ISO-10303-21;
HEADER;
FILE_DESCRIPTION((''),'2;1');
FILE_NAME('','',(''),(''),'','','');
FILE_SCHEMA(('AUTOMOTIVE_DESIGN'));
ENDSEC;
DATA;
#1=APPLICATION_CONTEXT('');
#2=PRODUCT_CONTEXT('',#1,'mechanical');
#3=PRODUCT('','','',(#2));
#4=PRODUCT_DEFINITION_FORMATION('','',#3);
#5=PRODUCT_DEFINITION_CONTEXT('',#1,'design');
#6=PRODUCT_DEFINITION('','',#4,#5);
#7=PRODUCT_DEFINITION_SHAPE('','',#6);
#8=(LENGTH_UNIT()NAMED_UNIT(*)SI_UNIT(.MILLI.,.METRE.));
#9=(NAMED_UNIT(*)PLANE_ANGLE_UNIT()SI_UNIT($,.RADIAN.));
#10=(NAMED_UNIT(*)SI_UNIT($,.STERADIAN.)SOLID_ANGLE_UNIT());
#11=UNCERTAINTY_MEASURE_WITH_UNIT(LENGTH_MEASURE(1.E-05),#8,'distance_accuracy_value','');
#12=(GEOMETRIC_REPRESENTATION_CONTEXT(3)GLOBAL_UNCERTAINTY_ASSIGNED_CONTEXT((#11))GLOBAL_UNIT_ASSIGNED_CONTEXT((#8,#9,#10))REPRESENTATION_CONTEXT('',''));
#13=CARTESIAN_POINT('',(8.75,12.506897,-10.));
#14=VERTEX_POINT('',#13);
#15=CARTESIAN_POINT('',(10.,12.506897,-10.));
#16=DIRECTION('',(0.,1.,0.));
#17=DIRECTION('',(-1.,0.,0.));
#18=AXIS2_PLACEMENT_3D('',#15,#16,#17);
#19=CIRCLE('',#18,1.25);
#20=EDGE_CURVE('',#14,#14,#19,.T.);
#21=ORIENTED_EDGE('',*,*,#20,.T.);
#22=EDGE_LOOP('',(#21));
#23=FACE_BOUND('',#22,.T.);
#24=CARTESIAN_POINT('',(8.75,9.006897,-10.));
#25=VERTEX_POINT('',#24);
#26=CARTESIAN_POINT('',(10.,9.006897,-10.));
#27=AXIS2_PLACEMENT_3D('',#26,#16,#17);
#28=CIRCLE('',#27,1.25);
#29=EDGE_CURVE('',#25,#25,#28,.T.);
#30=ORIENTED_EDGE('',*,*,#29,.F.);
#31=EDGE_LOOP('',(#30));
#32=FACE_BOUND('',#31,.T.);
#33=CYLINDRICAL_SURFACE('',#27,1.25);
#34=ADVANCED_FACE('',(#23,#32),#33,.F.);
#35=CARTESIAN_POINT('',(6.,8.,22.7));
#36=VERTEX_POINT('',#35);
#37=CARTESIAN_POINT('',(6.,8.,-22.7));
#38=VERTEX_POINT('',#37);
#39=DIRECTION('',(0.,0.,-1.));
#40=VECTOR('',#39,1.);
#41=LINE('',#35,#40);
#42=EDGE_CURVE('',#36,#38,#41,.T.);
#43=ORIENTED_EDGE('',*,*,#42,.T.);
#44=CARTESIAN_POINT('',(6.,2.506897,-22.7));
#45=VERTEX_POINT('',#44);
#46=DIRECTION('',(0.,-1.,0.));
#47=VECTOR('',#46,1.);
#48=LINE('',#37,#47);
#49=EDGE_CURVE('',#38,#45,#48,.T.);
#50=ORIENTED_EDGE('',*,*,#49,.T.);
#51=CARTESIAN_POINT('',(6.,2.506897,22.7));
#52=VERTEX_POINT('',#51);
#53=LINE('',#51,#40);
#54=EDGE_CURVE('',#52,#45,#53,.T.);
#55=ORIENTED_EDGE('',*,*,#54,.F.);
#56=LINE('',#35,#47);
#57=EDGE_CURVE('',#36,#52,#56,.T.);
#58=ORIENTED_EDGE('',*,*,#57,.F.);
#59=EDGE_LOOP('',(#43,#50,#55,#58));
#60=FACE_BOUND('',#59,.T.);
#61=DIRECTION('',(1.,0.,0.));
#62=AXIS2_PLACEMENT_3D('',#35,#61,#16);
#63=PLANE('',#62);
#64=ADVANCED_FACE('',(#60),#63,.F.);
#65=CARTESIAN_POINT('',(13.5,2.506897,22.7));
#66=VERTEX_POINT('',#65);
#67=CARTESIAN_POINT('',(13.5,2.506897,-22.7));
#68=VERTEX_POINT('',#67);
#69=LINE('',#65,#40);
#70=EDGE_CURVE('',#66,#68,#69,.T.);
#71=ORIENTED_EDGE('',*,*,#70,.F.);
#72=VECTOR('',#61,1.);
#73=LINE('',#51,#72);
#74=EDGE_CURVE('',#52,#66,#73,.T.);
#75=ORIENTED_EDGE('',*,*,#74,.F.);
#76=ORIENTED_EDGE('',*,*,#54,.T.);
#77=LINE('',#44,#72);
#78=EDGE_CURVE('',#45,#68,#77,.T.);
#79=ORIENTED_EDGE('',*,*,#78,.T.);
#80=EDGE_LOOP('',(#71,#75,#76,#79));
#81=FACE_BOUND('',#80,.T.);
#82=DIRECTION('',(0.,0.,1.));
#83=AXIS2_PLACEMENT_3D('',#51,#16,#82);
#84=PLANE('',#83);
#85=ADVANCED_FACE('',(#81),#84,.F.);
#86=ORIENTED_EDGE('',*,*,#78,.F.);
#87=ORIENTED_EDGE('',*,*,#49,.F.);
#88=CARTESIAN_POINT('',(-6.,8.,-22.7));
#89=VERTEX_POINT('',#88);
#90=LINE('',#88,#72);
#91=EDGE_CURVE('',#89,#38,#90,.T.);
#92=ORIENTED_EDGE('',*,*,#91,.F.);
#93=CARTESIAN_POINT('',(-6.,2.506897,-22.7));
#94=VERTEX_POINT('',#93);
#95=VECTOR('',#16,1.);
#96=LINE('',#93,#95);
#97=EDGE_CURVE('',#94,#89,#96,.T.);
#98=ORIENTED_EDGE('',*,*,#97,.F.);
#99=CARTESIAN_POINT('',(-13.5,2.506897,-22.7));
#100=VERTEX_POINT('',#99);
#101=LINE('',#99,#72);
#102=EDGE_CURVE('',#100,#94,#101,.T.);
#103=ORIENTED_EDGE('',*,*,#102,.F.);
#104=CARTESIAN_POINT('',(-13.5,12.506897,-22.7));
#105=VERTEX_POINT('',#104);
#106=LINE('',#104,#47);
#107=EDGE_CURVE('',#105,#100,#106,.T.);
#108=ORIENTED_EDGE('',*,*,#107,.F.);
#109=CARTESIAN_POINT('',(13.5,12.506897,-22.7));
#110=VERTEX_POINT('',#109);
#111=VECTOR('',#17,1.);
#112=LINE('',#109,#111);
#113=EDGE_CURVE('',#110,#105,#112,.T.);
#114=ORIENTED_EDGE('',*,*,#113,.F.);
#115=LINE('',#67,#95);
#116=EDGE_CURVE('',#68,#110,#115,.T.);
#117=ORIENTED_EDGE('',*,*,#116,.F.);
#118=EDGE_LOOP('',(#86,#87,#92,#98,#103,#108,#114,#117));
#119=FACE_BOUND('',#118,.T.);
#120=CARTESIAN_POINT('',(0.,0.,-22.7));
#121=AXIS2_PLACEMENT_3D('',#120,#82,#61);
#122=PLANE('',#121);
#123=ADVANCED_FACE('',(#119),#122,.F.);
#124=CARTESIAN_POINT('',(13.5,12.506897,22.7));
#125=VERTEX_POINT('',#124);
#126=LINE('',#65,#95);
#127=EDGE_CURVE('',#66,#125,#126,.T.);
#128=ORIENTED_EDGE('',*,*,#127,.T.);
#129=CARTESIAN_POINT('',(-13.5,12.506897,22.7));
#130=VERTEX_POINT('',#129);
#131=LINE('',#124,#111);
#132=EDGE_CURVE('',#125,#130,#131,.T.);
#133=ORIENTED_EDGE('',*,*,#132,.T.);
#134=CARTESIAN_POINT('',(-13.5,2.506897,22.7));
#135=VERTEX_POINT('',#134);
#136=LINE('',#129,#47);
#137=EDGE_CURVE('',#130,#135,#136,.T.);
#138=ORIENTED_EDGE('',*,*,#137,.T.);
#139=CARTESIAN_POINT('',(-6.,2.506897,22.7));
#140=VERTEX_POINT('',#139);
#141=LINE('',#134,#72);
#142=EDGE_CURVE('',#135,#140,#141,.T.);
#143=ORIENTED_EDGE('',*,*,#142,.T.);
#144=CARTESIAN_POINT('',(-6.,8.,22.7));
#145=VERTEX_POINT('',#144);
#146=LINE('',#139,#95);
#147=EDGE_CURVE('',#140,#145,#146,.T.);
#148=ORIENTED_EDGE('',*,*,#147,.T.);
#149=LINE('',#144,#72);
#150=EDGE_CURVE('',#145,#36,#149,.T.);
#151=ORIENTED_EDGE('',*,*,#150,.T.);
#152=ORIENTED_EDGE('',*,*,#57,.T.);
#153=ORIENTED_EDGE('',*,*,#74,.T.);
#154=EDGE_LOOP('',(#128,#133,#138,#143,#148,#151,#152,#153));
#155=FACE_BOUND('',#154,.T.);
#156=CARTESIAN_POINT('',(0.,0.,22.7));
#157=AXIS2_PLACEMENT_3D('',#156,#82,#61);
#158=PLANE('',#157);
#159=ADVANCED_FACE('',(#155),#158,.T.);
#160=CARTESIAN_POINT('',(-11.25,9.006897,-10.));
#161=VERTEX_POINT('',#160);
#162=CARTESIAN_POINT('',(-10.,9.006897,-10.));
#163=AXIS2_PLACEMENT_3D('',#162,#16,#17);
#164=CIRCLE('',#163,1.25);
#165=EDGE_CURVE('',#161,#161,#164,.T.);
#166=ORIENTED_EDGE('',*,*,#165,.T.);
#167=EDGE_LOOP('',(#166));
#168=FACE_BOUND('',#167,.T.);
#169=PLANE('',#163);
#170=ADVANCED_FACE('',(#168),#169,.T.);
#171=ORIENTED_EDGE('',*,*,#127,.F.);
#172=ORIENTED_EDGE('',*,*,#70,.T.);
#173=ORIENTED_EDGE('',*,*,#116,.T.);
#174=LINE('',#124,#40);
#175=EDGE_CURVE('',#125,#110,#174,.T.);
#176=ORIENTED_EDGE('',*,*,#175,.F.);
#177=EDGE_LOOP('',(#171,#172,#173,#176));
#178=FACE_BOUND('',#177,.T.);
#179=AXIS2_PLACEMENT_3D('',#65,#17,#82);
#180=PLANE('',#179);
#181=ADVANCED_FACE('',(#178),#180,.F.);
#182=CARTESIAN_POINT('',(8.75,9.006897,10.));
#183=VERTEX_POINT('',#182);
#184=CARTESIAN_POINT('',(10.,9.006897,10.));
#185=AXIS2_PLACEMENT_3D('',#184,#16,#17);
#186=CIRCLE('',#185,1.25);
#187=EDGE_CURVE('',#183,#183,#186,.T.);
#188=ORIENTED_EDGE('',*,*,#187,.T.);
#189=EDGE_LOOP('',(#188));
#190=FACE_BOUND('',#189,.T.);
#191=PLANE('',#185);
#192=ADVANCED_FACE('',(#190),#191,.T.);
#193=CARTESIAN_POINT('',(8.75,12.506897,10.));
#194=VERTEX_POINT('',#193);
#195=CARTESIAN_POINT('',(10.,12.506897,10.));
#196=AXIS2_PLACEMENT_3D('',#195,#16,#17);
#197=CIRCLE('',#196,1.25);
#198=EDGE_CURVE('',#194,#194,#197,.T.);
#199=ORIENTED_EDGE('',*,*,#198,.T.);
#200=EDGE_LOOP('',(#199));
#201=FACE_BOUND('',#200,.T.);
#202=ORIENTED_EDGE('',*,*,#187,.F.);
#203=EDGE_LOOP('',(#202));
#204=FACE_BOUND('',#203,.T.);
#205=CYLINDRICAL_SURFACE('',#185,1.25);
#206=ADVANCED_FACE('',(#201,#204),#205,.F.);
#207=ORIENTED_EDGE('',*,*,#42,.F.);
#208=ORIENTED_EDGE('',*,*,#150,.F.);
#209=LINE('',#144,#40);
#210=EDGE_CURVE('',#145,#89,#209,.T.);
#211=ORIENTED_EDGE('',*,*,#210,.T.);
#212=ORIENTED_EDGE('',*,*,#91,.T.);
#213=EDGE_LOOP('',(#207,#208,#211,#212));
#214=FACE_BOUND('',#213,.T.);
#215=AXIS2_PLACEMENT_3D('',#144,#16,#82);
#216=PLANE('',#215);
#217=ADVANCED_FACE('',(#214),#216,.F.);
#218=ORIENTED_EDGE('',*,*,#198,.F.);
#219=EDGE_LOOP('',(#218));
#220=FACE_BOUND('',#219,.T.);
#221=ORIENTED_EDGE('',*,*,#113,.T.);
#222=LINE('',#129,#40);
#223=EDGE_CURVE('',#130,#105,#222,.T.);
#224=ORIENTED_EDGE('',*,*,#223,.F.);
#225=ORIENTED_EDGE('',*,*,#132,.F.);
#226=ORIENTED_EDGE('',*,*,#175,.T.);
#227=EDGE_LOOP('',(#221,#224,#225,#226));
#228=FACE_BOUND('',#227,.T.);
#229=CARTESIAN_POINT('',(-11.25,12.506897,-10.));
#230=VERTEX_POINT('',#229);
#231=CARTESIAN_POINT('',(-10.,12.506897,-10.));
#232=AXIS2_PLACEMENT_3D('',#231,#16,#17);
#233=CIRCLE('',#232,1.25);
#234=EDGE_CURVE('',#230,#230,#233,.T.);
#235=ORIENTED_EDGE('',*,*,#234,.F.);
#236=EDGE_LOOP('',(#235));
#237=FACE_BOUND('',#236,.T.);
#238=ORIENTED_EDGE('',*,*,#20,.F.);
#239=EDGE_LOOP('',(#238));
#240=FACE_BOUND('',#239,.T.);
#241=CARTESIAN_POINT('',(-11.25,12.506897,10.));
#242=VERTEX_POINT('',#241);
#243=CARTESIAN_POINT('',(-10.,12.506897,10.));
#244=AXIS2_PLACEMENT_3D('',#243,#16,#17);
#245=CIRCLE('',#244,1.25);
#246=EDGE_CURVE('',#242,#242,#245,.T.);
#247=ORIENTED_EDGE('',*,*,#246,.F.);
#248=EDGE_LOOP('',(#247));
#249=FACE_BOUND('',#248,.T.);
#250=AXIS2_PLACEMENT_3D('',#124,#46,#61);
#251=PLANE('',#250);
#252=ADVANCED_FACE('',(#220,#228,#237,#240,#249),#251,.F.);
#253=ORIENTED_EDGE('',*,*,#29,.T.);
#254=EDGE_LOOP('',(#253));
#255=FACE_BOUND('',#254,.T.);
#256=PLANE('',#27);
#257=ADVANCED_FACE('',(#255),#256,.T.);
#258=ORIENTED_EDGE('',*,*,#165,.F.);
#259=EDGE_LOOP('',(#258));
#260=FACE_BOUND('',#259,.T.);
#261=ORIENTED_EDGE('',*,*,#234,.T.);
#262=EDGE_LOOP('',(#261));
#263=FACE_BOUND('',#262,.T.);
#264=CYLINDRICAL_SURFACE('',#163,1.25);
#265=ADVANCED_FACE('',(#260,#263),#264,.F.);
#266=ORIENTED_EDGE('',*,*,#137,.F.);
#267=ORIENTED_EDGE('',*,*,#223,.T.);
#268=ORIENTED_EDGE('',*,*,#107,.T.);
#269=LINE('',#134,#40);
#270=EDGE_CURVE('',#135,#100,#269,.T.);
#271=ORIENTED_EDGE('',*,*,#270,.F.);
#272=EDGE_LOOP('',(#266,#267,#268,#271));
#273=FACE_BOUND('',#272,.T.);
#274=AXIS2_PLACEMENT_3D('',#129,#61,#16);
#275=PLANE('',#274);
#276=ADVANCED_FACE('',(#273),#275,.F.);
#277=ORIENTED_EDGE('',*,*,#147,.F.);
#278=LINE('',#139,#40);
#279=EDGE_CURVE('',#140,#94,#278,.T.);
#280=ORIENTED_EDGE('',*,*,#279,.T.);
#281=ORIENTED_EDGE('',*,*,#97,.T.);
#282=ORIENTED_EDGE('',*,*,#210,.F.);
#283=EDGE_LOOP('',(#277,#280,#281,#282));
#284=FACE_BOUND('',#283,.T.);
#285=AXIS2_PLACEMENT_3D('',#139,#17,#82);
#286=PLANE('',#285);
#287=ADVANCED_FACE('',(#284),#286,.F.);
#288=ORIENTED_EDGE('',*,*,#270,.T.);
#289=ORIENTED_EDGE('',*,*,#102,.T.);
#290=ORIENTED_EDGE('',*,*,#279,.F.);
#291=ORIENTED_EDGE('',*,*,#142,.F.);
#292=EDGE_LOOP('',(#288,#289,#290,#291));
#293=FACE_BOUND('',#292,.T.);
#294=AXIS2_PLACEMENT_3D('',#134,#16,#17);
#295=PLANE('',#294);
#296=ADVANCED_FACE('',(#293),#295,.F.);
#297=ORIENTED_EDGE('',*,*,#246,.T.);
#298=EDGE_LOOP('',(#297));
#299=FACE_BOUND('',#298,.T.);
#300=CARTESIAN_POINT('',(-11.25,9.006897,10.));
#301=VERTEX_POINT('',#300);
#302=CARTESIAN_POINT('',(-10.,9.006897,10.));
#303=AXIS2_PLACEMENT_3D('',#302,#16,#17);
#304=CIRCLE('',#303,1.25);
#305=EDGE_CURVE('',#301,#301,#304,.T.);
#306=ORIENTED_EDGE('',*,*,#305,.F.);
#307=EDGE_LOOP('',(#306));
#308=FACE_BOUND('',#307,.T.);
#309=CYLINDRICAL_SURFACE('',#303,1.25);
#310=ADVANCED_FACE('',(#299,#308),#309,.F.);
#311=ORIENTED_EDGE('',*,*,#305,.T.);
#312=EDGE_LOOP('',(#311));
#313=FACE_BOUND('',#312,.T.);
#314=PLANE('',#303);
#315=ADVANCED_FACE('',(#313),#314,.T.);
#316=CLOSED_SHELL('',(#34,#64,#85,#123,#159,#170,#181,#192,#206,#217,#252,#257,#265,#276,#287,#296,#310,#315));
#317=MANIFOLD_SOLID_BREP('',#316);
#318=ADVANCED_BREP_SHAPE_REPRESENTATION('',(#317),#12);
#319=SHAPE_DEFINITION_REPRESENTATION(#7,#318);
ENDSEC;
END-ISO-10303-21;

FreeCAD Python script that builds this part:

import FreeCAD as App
import Part
import Sketcher
from FreeCAD import Vector

doc = App.newDocument("Part")
params = doc.addObject("Spreadsheet::Sheet", "Params")
for row, (alias, value) in enumerate([
    ("sketch1_width", "12 mm"),
    ("sketch1_width2", "27 mm"),
    ("sketch1_height", "10 mm"),
    ("pad1_length", "45.4 mm"),
    ("sketch2_diameter", "2.5 mm"),
    ("pocket1_length", "3.5 mm"),
], start=1):
    params.set(f"A{row}", alias)
    params.set(f"B{row}", "=" + value)
    params.setAlias(f"B{row}", alias)

body = doc.addObject("PartDesign::Body", "Body")

sketch1 = body.newObject("Sketcher::SketchObject", "Sketch")
sketch1.AttachmentSupport = (doc.getObject("XY_Plane"), [""])
sketch1.MapMode = "FlatFace"
sketch1.addGeometry([
    Part.LineSegment(Vector(-13.5, 2.506897, 0), Vector(-6, 2.506897, 0)),
    Part.LineSegment(Vector(-6, 2.506897, 0), Vector(-6, 8, 0)),
    Part.LineSegment(Vector(-6, 8, 0), Vector(6, 8, 0)),
    Part.LineSegment(Vector(6, 8, 0), Vector(6, 2.506897, 0)),
    Part.LineSegment(Vector(6, 2.506897, 0), Vector(13.5, 2.506897, 0)),
    Part.LineSegment(Vector(13.5, 2.506897, 0), Vector(13.5, 12.506897, 0)),
    Part.LineSegment(Vector(13.5, 12.506897, 0), Vector(-13.5, 12.506897, 0)),
    Part.LineSegment(Vector(-13.5, 12.506897, 0), Vector(-13.5, 2.506897, 0)),
], False)
sketch1.addConstraint([
    Sketcher.Constraint("Coincident", 0, 2, 1, 1),
    Sketcher.Constraint("Coincident", 1, 2, 2, 1),
    Sketcher.Constraint("Coincident", 2, 2, 3, 1),
    Sketcher.Constraint("Coincident", 3, 2, 4, 1),
    Sketcher.Constraint("Coincident", 4, 2, 5, 1),
    Sketcher.Constraint("Coincident", 5, 2, 6, 1),
    Sketcher.Constraint("Coincident", 6, 2, 7, 1),
    Sketcher.Constraint("Coincident", 7, 2, 0, 1),
    Sketcher.Constraint("Horizontal", 0),
    Sketcher.Constraint("Vertical", 1),
    Sketcher.Constraint("Horizontal", 2),
    Sketcher.Constraint("Vertical", 3),
    Sketcher.Constraint("Horizontal", 4),
    Sketcher.Constraint("Vertical", 5),
    Sketcher.Constraint("Horizontal", 6),
    Sketcher.Constraint("Vertical", 7),
    Sketcher.Constraint("Symmetric", 0, 2, 3, 2, -2),
    Sketcher.Constraint("Equal", 0, 4),
    Sketcher.Constraint("DistanceX", 2, 1, 2, 2, 12.0),
    Sketcher.Constraint("DistanceX", 6, 2, 6, 1, 27.0),
    Sketcher.Constraint("DistanceY", 5, 1, 5, 2, 10.0),
    Sketcher.Constraint("DistanceY", -1, 1, 1, 2, 8.0),
    Sketcher.Constraint("DistanceY", 1, 1, 1, 2, 5.493103),
])
sketch1.setExpression("Constraints[18]", "Params.sketch1_width")
sketch1.setExpression("Constraints[19]", "Params.sketch1_width2")
sketch1.setExpression("Constraints[20]", "Params.sketch1_height")
pad1 = body.newObject("PartDesign::Pad", "Pad")
pad1.Profile = sketch1
pad1.setExpression("Length", "Params.pad1_length")
pad1.Midplane = True

sketch2 = body.newObject("Sketcher::SketchObject", "Sketch001")
sketch2.AttachmentSupport = (doc.getObject("XZ_Plane"), [""])
sketch2.MapMode = "FlatFace"
sketch2.AttachmentOffset = App.Placement(Vector(0, 0, -12.506897), App.Rotation())
sketch2.addGeometry([
    Part.Circle(Vector(-10, -10, 0), Vector(0, 0, 1), 1.25),
    Part.Circle(Vector(10, -10, 0), Vector(0, 0, 1), 1.25),
    Part.Circle(Vector(-10, 10, 0), Vector(0, 0, 1), 1.25),
    Part.Circle(Vector(10, 10, 0), Vector(0, 0, 1), 1.25),
], False)
sketch2.addConstraint([
    Sketcher.Constraint("Equal", 0, 1),
    Sketcher.Constraint("Equal", 1, 2),
    Sketcher.Constraint("Equal", 2, 3),
    Sketcher.Constraint("Symmetric", 1, 3, 2, 3, -1, 1),
    Sketcher.Constraint("Symmetric", 0, 3, 3, 3, -1, 1),
    Sketcher.Constraint("Symmetric", 0, 3, 1, 3, -2),
    Sketcher.Constraint("Diameter", 0, 2.5),
    Sketcher.Constraint("DistanceX", 0, 3, -1, 1, 10.0),
    Sketcher.Constraint("DistanceY", 0, 3, -1, 1, 10.0),
])
sketch2.setExpression("Constraints[6]", "Params.sketch2_diameter")
pocket1 = body.newObject("PartDesign::Pocket", "Pocket")
pocket1.Profile = sketch2
pocket1.setExpression("Length", "Params.pocket1_length")
pocket1.Reversed = True

doc.recompute()
